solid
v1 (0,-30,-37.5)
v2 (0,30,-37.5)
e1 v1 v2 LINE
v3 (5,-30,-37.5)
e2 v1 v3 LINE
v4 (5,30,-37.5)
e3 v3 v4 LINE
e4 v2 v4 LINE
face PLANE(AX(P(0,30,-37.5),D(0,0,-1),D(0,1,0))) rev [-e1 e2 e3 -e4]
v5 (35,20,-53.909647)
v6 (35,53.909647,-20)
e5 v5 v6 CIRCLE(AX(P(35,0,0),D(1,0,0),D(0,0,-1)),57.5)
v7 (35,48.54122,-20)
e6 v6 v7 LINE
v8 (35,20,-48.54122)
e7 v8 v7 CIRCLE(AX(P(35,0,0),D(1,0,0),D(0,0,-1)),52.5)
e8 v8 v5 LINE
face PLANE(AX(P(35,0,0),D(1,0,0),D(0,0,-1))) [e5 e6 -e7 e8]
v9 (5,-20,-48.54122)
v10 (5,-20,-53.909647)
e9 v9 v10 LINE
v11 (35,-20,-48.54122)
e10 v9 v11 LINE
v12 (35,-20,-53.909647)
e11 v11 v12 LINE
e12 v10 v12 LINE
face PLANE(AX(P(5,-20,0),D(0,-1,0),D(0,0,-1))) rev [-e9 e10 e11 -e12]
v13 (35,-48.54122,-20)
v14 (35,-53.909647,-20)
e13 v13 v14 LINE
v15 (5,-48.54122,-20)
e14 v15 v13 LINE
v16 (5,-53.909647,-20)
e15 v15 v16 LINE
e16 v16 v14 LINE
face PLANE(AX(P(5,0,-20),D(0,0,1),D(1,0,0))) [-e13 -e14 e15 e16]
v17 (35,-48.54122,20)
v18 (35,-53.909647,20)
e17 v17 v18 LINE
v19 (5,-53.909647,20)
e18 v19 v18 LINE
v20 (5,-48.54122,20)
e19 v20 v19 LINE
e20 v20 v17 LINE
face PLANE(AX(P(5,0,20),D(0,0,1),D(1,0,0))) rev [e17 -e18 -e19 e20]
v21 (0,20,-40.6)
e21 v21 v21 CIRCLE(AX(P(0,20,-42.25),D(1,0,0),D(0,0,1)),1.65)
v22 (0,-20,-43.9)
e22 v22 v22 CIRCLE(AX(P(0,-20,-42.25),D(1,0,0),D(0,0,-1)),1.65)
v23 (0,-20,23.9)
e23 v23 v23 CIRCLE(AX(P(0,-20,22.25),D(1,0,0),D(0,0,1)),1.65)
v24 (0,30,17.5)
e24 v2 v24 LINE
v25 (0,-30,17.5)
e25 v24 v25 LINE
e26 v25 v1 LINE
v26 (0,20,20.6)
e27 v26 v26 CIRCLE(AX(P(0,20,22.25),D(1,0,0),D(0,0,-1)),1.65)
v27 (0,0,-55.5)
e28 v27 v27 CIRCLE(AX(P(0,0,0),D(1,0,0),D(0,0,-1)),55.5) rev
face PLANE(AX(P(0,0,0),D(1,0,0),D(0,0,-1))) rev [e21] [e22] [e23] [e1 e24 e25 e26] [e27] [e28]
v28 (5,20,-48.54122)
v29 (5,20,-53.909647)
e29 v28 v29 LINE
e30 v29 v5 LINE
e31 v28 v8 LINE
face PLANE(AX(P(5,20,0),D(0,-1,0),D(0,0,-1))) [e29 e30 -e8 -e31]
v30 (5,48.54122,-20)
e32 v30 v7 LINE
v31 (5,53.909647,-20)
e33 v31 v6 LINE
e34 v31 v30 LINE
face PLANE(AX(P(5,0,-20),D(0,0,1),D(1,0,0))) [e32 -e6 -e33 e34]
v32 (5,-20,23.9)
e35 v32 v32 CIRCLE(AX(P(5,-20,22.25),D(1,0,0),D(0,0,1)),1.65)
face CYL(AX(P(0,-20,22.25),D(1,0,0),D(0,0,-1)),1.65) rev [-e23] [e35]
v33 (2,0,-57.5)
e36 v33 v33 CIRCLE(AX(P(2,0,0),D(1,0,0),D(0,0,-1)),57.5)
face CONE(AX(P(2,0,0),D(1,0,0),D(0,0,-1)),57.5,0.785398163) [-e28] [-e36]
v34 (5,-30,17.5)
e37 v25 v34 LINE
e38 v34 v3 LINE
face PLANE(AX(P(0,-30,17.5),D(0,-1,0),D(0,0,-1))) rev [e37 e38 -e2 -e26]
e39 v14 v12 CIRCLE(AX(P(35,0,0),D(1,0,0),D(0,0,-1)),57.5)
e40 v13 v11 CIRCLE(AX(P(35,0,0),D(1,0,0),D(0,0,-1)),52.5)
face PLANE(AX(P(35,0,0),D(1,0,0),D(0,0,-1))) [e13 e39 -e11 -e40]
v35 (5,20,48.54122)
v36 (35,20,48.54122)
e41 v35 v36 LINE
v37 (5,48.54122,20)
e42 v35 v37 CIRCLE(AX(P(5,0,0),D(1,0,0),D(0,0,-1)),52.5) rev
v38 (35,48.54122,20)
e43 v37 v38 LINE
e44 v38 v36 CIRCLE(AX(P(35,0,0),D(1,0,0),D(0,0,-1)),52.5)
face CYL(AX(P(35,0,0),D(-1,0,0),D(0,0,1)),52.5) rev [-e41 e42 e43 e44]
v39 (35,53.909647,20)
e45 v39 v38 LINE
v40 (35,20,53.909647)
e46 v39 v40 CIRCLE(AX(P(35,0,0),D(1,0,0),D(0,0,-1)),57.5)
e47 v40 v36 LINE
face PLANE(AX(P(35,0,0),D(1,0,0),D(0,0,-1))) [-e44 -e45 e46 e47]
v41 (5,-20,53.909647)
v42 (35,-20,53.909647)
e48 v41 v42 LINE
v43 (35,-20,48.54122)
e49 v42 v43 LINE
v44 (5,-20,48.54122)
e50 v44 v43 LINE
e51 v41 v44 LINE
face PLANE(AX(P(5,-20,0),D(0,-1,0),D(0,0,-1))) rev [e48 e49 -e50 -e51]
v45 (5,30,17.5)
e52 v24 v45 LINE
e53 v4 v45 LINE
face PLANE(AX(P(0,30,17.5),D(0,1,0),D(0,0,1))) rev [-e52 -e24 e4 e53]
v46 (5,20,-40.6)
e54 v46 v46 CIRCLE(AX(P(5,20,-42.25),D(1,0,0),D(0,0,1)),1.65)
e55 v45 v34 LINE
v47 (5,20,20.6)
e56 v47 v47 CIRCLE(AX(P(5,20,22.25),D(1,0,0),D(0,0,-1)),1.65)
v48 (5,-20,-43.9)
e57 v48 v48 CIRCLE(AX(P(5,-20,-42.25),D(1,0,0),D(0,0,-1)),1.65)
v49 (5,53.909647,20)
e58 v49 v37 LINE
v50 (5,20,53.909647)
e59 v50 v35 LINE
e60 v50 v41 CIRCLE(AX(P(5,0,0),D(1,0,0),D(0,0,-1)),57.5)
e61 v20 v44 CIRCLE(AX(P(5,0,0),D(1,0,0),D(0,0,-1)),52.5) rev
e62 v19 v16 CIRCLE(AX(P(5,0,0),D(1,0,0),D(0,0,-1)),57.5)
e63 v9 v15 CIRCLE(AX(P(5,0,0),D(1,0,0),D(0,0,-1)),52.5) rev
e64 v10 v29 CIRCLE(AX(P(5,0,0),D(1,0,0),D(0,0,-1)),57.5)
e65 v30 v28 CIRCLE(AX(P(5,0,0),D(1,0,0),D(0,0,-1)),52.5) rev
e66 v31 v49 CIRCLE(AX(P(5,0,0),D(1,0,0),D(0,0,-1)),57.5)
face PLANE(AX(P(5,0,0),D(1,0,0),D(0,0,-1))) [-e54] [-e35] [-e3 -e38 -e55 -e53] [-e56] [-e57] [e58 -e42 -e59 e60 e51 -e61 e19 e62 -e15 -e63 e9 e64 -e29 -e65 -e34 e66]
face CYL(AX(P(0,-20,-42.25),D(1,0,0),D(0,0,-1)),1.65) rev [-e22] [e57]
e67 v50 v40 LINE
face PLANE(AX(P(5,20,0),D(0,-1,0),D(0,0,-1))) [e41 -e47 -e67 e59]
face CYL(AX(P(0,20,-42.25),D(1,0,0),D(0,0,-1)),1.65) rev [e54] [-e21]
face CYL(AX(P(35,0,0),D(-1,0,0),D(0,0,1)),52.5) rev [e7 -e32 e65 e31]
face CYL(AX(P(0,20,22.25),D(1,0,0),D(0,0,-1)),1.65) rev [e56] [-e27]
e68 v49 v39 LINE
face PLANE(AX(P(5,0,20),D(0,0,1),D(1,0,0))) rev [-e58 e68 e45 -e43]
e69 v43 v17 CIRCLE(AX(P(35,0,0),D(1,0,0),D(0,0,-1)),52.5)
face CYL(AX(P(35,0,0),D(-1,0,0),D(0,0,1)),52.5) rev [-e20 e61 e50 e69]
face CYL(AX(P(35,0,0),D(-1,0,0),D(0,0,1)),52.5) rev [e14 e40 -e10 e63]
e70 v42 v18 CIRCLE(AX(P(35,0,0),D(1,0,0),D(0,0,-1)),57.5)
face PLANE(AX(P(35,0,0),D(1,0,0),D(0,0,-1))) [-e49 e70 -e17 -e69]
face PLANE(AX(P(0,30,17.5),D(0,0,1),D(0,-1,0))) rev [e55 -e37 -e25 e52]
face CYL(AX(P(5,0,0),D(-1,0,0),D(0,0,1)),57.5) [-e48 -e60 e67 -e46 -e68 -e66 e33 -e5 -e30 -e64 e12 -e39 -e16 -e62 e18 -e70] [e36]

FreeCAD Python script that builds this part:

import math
import FreeCAD as App
import Part
import Sketcher
from FreeCAD import Vector


def edges_at(feature, points):
    """Names of the edges that pass closest to the given points."""
    edges = feature.Shape.Edges
    near = lambda p: min(range(len(edges)), key=lambda i: edges[i].distToShape(Part.Vertex(*p))[0])
    return sorted({f"Edge{near(p) + 1}" for p in points})

doc = App.newDocument("Part")
body = doc.addObject("PartDesign::Body", "Body")

sketch1 = body.newObject("Sketcher::SketchObject", "Sketch")
sketch1.AttachmentSupport = (doc.getObject("YZ_Plane"), [""])
sketch1.MapMode = "FlatFace"
sketch1.addGeometry(Part.Circle(Vector(0, 0, 0), Vector(0, 0, 1), 58), False)
sketch1.addConstraint([
    Sketcher.Constraint("Coincident", 0, 3, -1, 1),
    Sketcher.Constraint("Diameter", 0, 115.0),
])
pad1 = body.newObject("PartDesign::Pad", "Pad")
pad1.Profile = sketch1
pad1.Length = 5

sketch2 = body.newObject("Sketcher::SketchObject", "Sketch001")
sketch2.AttachmentSupport = (doc.getObject("YZ_Plane"), [""])
sketch2.MapMode = "FlatFace"
sketch2.AttachmentOffset = App.Placement(Vector(0, 0, 5), App.Rotation())
sketch2.addGeometry([
    Part.Circle(Vector(0, 0, 0), Vector(0, 0, 1), 58),
    Part.Circle(Vector(0, 0, 0), Vector(0, 0, 1), 52),
], False)
sketch2.addConstraint([
    Sketcher.Constraint("Coincident", 0, 3, -1, 1),
    Sketcher.Constraint("Coincident", 1, 3, -1, 1),
    Sketcher.Constraint("Diameter", 0, 115.0),
    Sketcher.Constraint("Diameter", 1, 105.0),
])
pad2 = body.newObject("PartDesign::Pad", "Pad001")
pad2.Profile = sketch2
pad2.Length = 30

sketch3 = body.newObject("Sketcher::SketchObject", "Sketch002")
sketch3.AttachmentSupport = (doc.getObject("YZ_Plane"), [""])
sketch3.MapMode = "FlatFace"
sketch3.AttachmentOffset = App.Placement(Vector(0, 0, 5), App.Rotation())
sketch3.addGeometry([
    Part.Circle(Vector(20, 22.2, 0), Vector(0, 0, 1), 1.6),
    Part.Circle(Vector(-20, 22.2, 0), Vector(0, 0, 1), 1.6),
    Part.Circle(Vector(20, -42.2, 0), Vector(0, 0, 1), 1.6),
    Part.Circle(Vector(-20, -42.2, 0), Vector(0, 0, 1), 1.6),
    Part.LineSegment(Vector(30, 17.5, 0), Vector(-30, 17.5, 0)),
    Part.LineSegment(Vector(-30, 17.5, 0), Vector(-30, -37.5, 0)),
    Part.LineSegment(Vector(-30, -37.5, 0), Vector(30, -37.5, 0)),
    Part.LineSegment(Vector(30, -37.5, 0), Vector(30, 17.5, 0)),
], False)
sketch3.addConstraint([
    Sketcher.Constraint("Coincident", 4, 2, 5, 1),
    Sketcher.Constraint("Coincident", 5, 2, 6, 1),
    Sketcher.Constraint("Coincident", 6, 2, 7, 1),
    Sketcher.Constraint("Coincident", 7, 2, 4, 1),
    Sketcher.Constraint("Horizontal", 4),
    Sketcher.Constraint("Vertical", 5),
    Sketcher.Constraint("Horizontal", 6),
    Sketcher.Constraint("Vertical", 7),
    Sketcher.Constraint("Equal", 0, 1),
    Sketcher.Constraint("Equal", 1, 2),
    Sketcher.Constraint("Equal", 2, 3),
    Sketcher.Constraint("Symmetric", 0, 3, 1, 3, -2),
    Sketcher.Constraint("Symmetric", 2, 3, 3, 3, -2),
    Sketcher.Constraint("Vertical", 0, 3, 2, 3),
    Sketcher.Constraint("Diameter", 0, 3.3),
    Sketcher.Constraint("DistanceX", 4, 2, 4, 1, 60.0),
    Sketcher.Constraint("DistanceY", 5, 2, 5, 1, 55.0),
    Sketcher.Constraint("DistanceX", -1, 1, 0, 3, 20.0),
    Sketcher.Constraint("DistanceX", 4, 2, -1, 1, 30.0),
    Sketcher.Constraint("DistanceY", -1, 1, 4, 2, 17.5),
    Sketcher.Constraint("DistanceY", 2, 3, 0, 3, 64.5),
    Sketcher.Constraint("DistanceY", -1, 1, 0, 3, 22.25),
])
pocket1 = body.newObject("PartDesign::Pocket", "Pocket")
pocket1.Profile = sketch3
pocket1.Type = "ThroughAll"

sketch4 = body.newObject("Sketcher::SketchObject", "Sketch003")
sketch4.AttachmentSupport = (doc.getObject("YZ_Plane"), [""])
sketch4.MapMode = "FlatFace"
sketch4.AttachmentOffset = App.Placement(Vector(0, 0, 5), App.Rotation())
sketch4.addGeometry([
    Part.ArcOfCircle(Part.Circle(Vector(0, 0, 0), Vector(0, 0, 1), 57), math.radians(-20), math.radians(20)),
    Part.LineSegment(Vector(54, 20, 0), Vector(49, 20, 0)),
    Part.ArcOfCircle(Part.Circle(Vector(0, 0, 0), Vector(0, 0, 1), 52), math.radians(-22), math.radians(22)),
    Part.LineSegment(Vector(49, -20, 0), Vector(54, -20, 0)),
    Part.LineSegment(Vector(20, 49, 0), Vector(20, 54, 0)),
    Part.ArcOfCircle(Part.Circle(Vector(0, 0, 0), Vector(0, 0, 1), 57), math.radians(70), math.radians(110)),
    Part.LineSegment(Vector(-20, 54, 0), Vector(-20, 49, 0)),
    Part.ArcOfCircle(Part.Circle(Vector(0, 0, 0), Vector(0, 0, 1), 52), math.radians(68), math.radians(112)),
    Part.LineSegment(Vector(20, -54, 0), Vector(20, -49, 0)),
    Part.ArcOfCircle(Part.Circle(Vector(0, 0, 0), Vector(0, 0, 1), 52), math.radians(-112), math.radians(-68)),
    Part.LineSegment(Vector(-20, -49, 0), Vector(-20, -54, 0)),
    Part.ArcOfCircle(Part.Circle(Vector(0, 0, 0), Vector(0, 0, 1), 57), math.radians(-110), math.radians(-70)),
    Part.LineSegment(Vector(-49, 20, 0), Vector(-54, 20, 0)),
    Part.ArcOfCircle(Part.Circle(Vector(0, 0, 0), Vector(0, 0, 1), 57), math.radians(160), math.radians(200)),
    Part.LineSegment(Vector(-54, -20, 0), Vector(-49, -20, 0)),
    Part.ArcOfCircle(Part.Circle(Vector(0, 0, 0), Vector(0, 0, 1), 52), math.radians(158), math.radians(202)),
], False)
sketch4.addConstraint([
    Sketcher.Constraint("Coincident", 0, 2, 1, 1),
    Sketcher.Constraint("Coincident", 1, 2, 2, 2),
    Sketcher.Constraint("Coincident", 2, 1, 3, 1),
    Sketcher.Constraint("Coincident", 3, 2, 0, 1),
    Sketcher.Constraint("Coincident", 4, 2, 5, 1),
    Sketcher.Constraint("Coincident", 5, 2, 6, 1),
    Sketcher.Constraint("Coincident", 6, 2, 7, 2),
    Sketcher.Constraint("Coincident", 7, 1, 4, 1),
    Sketcher.Constraint("Coincident", 8, 2, 9, 2),
    Sketcher.Constraint("Coincident", 9, 1, 10, 1),
    Sketcher.Constraint("Coincident", 10, 2, 11, 1),
    Sketcher.Constraint("Coincident", 11, 2, 8, 1),
    Sketcher.Constraint("Coincident", 12, 2, 13, 1),
    Sketcher.Constraint("Coincident", 13, 2, 14, 1),
    Sketcher.Constraint("Coincident", 14, 2, 15, 2),
    Sketcher.Constraint("Coincident", 15, 1, 12, 1),
    Sketcher.Constraint("Horizontal", 1),
    Sketcher.Constraint("Horizontal", 3),
    Sketcher.Constraint("Vertical", 4),
    Sketcher.Constraint("Vertical", 6),
    Sketcher.Constraint("Vertical", 8),
    Sketcher.Constraint("Vertical", 10),
    Sketcher.Constraint("Horizontal", 12),
    Sketcher.Constraint("Horizontal", 14),
    Sketcher.Constraint("Coincident", 0, 3, -1, 1),
    Sketcher.Constraint("Coincident", 2, 3, -1, 1),
    Sketcher.Constraint("Coincident", 5, 3, -1, 1),
    Sketcher.Constraint("Coincident", 7, 3, -1, 1),
    Sketcher.Constraint("Coincident", 9, 3, -1, 1),
    Sketcher.Constraint("Coincident", 11, 3, -1, 1),
    Sketcher.Constraint("Coincident", 13, 3, -1, 1),
    Sketcher.Constraint("Coincident", 15, 3, -1, 1),
    Sketcher.Constraint("Equal", 0, 5),
    Sketcher.Constraint("Equal", 2, 7),
    Sketcher.Constraint("Equal", 7, 9),
    Sketcher.Constraint("Equal", 5, 11),
    Sketcher.Constraint("Equal", 11, 13),
    Sketcher.Constraint("Equal", 9, 15),
    Sketcher.Constraint("Horizontal", 4, 2, 5, 2),
    Sketcher.Constraint("Horizontal", 8, 2, 9, 1),
    Sketcher.Constraint("Horizontal", 1, 2, 12, 2),
    Sketcher.Constraint("Horizontal", 3, 2, 13, 2),
    Sketcher.Constraint("Vertical", 1, 2, 2, 1),
    Sketcher.Constraint("Vertical", 7, 1, 8, 2),
    Sketcher.Constraint("Equal", 14, 4),
    Sketcher.Constraint("Radius", 0, 57.5),
    Sketcher.Constraint("Radius", 2, 52.5),
    Sketcher.Constraint("DistanceY", -1, 1, 0, 2, 20.0),
])
pocket2 = body.newObject("PartDesign::Pocket", "Pocket001")
pocket2.Profile = sketch4
pocket2.Length = 30
pocket2.Reversed = True
doc.recompute()

chamfer = body.newObject("PartDesign::Chamfer", "Chamfer")
chamfer.Base = (pocket2, edges_at(pocket2, [(0, 0, 57.5)]))
chamfer.Size = 2

doc.recompute()
